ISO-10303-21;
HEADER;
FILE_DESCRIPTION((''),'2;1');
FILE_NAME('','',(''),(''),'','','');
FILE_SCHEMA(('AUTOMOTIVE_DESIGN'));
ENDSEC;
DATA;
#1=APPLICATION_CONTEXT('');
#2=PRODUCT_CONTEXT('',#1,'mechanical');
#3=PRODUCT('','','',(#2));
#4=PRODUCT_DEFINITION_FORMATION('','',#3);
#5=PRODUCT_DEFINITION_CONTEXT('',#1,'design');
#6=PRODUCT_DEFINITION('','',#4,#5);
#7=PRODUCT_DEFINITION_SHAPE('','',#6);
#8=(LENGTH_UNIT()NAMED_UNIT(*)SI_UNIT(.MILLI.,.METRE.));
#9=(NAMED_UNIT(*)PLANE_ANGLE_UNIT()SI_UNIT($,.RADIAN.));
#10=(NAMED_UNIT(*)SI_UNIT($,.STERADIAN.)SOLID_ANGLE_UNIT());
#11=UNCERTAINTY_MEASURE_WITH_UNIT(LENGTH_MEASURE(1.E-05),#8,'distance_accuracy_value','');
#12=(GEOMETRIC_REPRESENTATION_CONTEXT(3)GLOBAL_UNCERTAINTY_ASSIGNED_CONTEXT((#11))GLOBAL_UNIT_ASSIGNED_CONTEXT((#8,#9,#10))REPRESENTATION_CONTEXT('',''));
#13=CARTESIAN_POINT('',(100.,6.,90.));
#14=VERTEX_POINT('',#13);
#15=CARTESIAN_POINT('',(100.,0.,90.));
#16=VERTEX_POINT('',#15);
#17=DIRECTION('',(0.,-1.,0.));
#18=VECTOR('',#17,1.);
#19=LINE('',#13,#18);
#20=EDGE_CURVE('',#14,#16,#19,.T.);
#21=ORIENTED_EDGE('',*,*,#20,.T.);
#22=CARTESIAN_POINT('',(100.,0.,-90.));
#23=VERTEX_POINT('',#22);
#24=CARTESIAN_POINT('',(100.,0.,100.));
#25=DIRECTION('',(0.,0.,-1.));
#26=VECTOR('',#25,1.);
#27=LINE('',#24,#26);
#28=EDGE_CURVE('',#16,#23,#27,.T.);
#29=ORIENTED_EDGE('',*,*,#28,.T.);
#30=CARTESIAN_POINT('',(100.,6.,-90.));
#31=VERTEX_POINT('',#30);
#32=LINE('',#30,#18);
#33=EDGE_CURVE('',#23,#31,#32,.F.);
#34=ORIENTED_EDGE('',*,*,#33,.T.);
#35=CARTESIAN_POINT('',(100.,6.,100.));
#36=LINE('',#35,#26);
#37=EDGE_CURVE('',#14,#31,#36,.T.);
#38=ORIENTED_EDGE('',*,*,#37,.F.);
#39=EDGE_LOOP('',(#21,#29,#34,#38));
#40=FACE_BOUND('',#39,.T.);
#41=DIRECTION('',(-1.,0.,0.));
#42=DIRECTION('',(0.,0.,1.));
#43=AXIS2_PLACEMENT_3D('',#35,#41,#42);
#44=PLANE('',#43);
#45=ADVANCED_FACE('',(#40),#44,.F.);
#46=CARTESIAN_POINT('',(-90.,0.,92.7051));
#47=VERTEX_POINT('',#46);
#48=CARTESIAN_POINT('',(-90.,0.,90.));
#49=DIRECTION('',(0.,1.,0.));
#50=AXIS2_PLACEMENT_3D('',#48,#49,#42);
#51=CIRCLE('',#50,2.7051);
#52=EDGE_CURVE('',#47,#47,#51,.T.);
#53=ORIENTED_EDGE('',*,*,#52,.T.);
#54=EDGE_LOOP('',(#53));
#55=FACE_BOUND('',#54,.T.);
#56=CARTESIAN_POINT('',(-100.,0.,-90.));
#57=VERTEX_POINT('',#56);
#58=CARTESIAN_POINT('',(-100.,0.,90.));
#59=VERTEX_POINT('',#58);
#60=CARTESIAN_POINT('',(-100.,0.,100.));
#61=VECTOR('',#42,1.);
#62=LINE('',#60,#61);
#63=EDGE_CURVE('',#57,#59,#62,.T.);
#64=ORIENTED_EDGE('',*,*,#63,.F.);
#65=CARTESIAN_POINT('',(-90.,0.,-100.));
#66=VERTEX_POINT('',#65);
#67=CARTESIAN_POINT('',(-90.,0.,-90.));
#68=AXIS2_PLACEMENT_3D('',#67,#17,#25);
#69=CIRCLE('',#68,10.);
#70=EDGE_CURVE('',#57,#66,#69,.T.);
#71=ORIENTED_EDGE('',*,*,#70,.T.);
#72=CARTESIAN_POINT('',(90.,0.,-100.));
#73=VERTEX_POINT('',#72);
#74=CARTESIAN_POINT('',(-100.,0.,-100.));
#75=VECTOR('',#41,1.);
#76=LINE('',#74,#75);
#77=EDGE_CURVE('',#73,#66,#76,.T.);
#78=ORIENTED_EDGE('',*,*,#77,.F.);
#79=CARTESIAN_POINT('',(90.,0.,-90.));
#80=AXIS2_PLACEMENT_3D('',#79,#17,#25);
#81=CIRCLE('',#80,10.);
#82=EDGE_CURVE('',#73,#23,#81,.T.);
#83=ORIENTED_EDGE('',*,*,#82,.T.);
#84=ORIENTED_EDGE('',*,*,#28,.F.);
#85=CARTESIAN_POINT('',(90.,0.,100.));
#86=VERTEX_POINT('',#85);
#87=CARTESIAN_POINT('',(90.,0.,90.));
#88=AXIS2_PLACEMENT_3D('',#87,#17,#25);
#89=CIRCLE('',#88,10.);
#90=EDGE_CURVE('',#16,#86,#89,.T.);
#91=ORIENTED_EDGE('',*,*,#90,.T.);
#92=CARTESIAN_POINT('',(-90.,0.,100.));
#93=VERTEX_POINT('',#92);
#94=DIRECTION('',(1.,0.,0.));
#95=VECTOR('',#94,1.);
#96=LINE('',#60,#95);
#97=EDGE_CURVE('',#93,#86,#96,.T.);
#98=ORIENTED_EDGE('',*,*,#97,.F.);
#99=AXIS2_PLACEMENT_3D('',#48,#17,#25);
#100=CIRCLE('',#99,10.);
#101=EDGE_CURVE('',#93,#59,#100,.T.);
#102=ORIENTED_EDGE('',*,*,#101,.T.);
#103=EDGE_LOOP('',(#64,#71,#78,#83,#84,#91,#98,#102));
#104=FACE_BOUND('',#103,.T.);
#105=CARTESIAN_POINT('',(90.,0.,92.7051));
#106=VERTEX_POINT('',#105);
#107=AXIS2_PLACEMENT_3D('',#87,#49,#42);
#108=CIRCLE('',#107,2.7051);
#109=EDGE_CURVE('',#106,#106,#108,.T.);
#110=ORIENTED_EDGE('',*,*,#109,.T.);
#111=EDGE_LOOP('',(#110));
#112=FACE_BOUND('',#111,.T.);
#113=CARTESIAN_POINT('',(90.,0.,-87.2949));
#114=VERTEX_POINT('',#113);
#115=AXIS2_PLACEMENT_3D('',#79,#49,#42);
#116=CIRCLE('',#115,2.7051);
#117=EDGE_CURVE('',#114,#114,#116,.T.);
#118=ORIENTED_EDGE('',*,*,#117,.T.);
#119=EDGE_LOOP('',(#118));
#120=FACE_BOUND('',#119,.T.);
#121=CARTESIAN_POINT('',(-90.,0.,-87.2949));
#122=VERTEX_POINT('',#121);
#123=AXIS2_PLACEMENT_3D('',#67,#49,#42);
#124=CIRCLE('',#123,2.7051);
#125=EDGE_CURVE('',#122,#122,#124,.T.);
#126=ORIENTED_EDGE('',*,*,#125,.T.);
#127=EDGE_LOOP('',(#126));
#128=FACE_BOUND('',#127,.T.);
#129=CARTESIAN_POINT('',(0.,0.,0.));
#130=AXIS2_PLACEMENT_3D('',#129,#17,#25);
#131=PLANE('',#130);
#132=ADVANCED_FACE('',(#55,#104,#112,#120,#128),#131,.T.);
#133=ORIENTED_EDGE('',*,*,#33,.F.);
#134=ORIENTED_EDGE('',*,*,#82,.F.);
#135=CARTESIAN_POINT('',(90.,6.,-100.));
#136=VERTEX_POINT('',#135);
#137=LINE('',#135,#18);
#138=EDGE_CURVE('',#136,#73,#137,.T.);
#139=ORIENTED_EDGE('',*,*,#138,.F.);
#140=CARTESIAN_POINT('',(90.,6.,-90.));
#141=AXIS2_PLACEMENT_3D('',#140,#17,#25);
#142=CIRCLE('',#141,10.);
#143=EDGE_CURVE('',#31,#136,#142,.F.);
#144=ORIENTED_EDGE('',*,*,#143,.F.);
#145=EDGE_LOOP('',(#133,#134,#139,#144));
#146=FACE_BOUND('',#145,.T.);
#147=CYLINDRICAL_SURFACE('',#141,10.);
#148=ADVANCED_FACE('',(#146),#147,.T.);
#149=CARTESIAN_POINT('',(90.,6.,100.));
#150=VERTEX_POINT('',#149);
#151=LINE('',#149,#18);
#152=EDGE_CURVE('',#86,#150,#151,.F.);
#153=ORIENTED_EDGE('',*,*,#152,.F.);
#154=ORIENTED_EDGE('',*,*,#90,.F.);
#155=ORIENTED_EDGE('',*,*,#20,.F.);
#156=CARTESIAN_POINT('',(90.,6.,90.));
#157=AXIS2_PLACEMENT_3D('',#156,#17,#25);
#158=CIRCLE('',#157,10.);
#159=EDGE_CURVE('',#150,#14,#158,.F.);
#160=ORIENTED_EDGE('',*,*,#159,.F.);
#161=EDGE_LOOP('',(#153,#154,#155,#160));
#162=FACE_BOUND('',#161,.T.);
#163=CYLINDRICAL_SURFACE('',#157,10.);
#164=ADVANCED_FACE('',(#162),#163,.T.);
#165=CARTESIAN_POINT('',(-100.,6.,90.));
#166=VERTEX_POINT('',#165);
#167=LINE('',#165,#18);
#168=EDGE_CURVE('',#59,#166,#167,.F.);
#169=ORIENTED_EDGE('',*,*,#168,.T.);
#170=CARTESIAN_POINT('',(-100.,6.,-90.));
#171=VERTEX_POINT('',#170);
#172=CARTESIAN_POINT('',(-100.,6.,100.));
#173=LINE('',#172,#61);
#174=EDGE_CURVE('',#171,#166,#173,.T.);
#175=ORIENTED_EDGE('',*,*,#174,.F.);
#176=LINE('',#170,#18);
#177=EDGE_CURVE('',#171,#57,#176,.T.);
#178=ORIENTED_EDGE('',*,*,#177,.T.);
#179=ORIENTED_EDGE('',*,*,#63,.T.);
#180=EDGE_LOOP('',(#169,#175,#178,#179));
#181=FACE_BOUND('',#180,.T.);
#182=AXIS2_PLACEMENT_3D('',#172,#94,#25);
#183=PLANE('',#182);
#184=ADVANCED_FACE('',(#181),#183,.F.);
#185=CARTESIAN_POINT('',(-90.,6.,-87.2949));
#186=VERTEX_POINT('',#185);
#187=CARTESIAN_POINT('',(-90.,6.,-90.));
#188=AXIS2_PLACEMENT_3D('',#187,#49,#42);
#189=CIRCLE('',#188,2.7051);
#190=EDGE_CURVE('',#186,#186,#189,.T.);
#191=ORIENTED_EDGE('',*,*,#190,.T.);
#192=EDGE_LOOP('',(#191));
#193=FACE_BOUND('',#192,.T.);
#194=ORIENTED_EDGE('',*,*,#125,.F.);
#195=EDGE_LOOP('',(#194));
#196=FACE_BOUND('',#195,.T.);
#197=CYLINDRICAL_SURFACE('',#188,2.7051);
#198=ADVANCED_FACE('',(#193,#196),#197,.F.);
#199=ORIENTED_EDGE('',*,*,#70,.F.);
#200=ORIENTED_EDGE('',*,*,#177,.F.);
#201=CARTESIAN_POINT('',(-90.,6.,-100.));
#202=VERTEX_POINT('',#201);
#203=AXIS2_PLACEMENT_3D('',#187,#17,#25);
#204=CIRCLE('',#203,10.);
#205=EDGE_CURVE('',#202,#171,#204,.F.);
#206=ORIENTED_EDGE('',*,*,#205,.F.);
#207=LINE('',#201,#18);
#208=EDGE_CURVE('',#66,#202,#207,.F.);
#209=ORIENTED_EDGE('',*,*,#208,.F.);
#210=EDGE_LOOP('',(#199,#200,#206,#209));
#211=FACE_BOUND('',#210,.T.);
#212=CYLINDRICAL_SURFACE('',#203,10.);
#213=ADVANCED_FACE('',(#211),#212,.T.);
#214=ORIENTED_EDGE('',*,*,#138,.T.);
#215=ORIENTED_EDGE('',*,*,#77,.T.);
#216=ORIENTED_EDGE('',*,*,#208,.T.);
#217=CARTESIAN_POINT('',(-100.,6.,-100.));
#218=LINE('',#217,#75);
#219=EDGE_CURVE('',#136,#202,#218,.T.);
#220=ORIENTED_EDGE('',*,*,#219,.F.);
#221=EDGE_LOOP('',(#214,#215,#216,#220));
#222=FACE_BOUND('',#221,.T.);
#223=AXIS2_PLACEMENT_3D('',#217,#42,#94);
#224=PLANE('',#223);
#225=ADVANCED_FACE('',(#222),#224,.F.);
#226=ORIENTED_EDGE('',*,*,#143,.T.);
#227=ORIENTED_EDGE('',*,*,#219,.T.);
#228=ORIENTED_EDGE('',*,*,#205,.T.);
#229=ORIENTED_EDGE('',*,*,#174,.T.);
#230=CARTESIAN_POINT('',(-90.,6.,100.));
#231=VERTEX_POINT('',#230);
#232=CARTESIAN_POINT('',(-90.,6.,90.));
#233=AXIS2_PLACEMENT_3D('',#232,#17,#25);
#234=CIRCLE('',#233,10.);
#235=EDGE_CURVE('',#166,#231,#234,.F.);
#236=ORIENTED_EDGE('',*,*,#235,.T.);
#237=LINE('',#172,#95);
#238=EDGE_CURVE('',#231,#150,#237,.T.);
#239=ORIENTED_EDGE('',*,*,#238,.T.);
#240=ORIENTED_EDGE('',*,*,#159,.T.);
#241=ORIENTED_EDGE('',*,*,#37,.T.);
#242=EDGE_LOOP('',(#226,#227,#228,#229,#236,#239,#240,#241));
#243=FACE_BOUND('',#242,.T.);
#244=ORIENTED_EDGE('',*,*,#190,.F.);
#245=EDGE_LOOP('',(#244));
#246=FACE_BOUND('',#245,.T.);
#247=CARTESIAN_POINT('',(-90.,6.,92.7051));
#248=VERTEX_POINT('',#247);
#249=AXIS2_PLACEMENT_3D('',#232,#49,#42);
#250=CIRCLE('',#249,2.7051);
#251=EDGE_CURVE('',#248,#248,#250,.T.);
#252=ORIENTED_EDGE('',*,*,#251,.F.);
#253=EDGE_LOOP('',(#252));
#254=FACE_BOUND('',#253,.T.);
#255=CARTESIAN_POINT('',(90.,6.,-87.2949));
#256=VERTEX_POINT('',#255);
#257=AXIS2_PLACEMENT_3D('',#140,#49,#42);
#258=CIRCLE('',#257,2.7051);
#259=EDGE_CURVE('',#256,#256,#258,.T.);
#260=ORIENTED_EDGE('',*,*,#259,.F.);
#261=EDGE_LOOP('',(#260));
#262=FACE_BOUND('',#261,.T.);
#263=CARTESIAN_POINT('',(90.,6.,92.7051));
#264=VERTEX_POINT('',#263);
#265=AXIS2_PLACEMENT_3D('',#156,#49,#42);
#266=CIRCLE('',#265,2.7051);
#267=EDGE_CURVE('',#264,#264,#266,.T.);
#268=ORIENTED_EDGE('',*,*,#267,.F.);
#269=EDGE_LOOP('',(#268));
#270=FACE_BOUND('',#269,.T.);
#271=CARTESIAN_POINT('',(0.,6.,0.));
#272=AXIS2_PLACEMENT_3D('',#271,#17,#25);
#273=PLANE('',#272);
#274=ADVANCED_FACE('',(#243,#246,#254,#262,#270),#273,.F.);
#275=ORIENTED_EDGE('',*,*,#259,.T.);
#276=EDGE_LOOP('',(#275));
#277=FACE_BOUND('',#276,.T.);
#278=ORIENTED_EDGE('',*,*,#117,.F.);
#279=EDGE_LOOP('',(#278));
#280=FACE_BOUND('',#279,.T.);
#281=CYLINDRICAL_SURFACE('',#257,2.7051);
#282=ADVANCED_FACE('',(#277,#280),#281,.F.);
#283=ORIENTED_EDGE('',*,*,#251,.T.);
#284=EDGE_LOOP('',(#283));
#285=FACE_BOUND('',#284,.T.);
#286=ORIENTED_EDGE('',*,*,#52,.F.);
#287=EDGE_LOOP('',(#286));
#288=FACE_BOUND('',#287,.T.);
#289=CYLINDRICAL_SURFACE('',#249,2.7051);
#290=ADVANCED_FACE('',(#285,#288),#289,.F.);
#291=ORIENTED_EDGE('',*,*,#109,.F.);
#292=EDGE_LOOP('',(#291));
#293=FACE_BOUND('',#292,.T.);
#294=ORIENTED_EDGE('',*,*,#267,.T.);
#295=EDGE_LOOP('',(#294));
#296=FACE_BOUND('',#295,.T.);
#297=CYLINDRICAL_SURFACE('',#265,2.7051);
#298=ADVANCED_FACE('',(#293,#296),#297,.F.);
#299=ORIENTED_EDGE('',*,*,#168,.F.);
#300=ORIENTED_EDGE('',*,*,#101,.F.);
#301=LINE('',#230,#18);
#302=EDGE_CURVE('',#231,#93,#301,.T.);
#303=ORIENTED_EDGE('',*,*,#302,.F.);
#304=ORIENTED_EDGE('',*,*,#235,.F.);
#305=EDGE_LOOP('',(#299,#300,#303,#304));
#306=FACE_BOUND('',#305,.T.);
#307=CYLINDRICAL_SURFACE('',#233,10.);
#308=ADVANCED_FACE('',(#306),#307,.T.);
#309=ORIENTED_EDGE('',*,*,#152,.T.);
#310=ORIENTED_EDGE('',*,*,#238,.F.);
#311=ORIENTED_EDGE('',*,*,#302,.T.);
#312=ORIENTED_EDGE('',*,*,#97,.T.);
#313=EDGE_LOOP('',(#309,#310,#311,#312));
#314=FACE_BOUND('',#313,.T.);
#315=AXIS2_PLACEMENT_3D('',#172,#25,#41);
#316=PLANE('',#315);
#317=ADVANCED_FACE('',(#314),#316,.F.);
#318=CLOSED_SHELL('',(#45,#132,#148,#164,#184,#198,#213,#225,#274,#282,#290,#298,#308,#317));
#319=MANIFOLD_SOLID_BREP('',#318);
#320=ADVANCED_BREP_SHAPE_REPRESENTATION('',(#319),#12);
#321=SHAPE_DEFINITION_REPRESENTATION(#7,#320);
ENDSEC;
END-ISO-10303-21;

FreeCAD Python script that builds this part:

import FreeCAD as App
import Part
import Sketcher


def edges_at(feature, points):
    """Names of the edges that pass closest to the given points."""
    edges = feature.Shape.Edges
    near = lambda p: min(range(len(edges)), key=lambda i: edges[i].distToShape(Part.Vertex(*p))[0])
    return sorted({f"Edge{near(p) + 1}" for p in points})

doc = App.newDocument("Part")
body = doc.addObject("PartDesign::Body", "Body")

# Sketch on XZ plane
sketch1 = body.newObject("Sketcher::SketchObject", "Sketch")
sketch1.AttachmentSupport = (doc.getObject("XZ_Plane"), [""])
sketch1.MapMode = "FlatFace"
sketch1.addGeometry([
    Part.LineSegment(App.Vector(-100, -100, 0), App.Vector(-100, 100, 0)),
    Part.LineSegment(App.Vector(-100, 100, 0), App.Vector(100, 100, 0)),
    Part.LineSegment(App.Vector(100, 100, 0), App.Vector(100, -100, 0)),
    Part.LineSegment(App.Vector(100, -100, 0), App.Vector(-100, -100, 0)),
], False)
sketch1.addConstraint([
    Sketcher.Constraint("Coincident", 0, 2, 1, 1),
    Sketcher.Constraint("Coincident", 1, 2, 2, 1),
    Sketcher.Constraint("Coincident", 2, 2, 3, 1),
    Sketcher.Constraint("Coincident", 3, 2, 0, 1),
    Sketcher.Constraint("Vertical", 0),
    Sketcher.Constraint("Horizontal", 1),
    Sketcher.Constraint("Vertical", 2),
    Sketcher.Constraint("Horizontal", 3),
    Sketcher.Constraint("Symmetric", 0, 2, 2, 2, -1, 1),
    Sketcher.Constraint("Equal", 3, 0),
    Sketcher.Constraint("DistanceX", 1, 1, 1, 2, 200.0),
])
pad1 = body.newObject("PartDesign::Pad", "Pad")
pad1.Profile = sketch1
pad1.Length = 6
pad1.Reversed = True
doc.recompute()

fillet = body.newObject("PartDesign::Fillet", "Fillet")
fillet.Base = (pad1, edges_at(pad1, [
    (100, 3, 100),
    (-100, 3, 100),
    (-100, 3, -100),
    (100, 3, -100),
]))
fillet.Radius = 10

# Sketch on XZ plane
sketch2 = body.newObject("Sketcher::SketchObject", "Sketch001")
sketch2.AttachmentSupport = (doc.getObject("XZ_Plane"), [""])
sketch2.MapMode = "FlatFace"
sketch2.AttachmentOffset = App.Placement(App.Vector(0, 0, -6), App.Rotation())
sketch2.addGeometry([
    Part.Circle(App.Vector(-90, -90, 0), App.Vector(0, 0, 1), 2.7),
    Part.Circle(App.Vector(90, -90, 0), App.Vector(0, 0, 1), 2.7),
    Part.Circle(App.Vector(90, 90, 0), App.Vector(0, 0, 1), 2.7),
    Part.Circle(App.Vector(-90, 90, 0), App.Vector(0, 0, 1), 2.7),
], False)
sketch2.addConstraint([
    Sketcher.Constraint("Equal", 0, 1),
    Sketcher.Constraint("Equal", 1, 2),
    Sketcher.Constraint("Equal", 2, 3),
    Sketcher.Constraint("Symmetric", 0, 3, 2, 3, -1, 1),
    Sketcher.Constraint("Symmetric", 1, 3, 3, 3, -1, 1),
    Sketcher.Constraint("Symmetric", 0, 3, 1, 3, -2),
    Sketcher.Constraint("DistanceX", 0, 3, -1, 1, 90.0),
    Sketcher.Constraint("DistanceY", 0, 3, -1, 1, 90.0),
    Sketcher.Constraint("Diameter", 0, 5.4102),
])
doc.recompute()
hole = body.newObject("PartDesign::Hole", "Hole")
hole.Profile = sketch2
hole.ThreadType = "None"
hole.Diameter = 5.4102
hole.DepthType = "ThroughAll"
hole.Reversed = True

doc.recompute()
